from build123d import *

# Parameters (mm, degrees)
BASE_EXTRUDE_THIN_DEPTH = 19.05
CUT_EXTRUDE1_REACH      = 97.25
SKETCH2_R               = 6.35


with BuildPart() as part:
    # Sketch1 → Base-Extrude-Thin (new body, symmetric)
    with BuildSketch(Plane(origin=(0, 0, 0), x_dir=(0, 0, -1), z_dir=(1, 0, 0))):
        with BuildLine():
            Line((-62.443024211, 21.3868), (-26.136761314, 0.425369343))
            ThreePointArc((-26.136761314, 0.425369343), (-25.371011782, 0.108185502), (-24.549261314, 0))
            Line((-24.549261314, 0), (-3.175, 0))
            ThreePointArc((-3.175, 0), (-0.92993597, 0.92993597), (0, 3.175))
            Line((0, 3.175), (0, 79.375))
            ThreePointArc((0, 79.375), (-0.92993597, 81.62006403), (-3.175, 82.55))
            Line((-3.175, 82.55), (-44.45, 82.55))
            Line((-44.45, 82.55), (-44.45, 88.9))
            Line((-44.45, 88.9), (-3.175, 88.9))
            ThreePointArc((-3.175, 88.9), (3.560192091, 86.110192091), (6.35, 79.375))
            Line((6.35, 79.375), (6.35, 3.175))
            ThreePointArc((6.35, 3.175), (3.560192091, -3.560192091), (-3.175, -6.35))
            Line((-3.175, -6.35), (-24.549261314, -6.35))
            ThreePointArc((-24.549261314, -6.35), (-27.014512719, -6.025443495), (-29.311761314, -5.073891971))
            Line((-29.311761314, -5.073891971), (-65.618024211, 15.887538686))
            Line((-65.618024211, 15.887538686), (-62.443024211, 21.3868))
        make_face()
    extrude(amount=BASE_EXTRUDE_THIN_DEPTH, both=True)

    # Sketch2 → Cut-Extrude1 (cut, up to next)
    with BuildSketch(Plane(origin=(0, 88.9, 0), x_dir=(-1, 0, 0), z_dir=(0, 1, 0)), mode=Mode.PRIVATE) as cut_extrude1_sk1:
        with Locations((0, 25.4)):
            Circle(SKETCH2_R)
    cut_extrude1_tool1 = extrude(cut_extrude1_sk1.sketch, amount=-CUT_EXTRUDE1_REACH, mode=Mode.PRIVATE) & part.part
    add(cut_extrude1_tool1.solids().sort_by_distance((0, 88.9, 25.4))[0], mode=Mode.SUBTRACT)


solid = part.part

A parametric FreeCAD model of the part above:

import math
import FreeCAD as App
import Part
import Sketcher
from FreeCAD import Vector
Q = App.Units.Quantity

doc = App.newDocument("Part")
body = doc.addObject("PartDesign::Body", "Body")

# Sketch on YZ plane
sketch1 = body.newObject("Sketcher::SketchObject", "Sketch")
sketch1.AttachmentSupport = (doc.getObject("YZ_Plane"), [""])
sketch1.MapMode = "FlatFace"
sketch1.addGeometry([
    Part.LineSegment(Vector(0.425369, 26.136761, 0), Vector(21.3868, 62.443024, 0)),  # 0
    Part.LineSegment(Vector(21.3868, 62.443024, 0), Vector(15.887539, 65.618024, 0)),  # 1
    Part.LineSegment(Vector(15.887539, 65.618024, 0), Vector(-5.073892, 29.311761, 0)),  # 2
    Part.ArcOfCircle(Part.Circle(Vector(3.175, 24.549261, 0), Vector(0, 0, 1), 9.525), math.radians(150), math.radians(180)),  # 3
    Part.LineSegment(Vector(-6.35, 24.549261, 0), Vector(-6.35, 3.175, 0)),  # 4
    Part.ArcOfCircle(Part.Circle(Vector(3.175, 3.175, 0), Vector(0, 0, 1), 9.525), math.radians(180), math.radians(270)),  # 5
    Part.LineSegment(Vector(3.175, -6.35, 0), Vector(79.375, -6.35, 0)),  # 6
    Part.ArcOfCircle(Part.Circle(Vector(79.375, 3.175, 0), Vector(0, 0, 1), 9.525), math.radians(-90), math.radians(0)),  # 7
    Part.LineSegment(Vector(88.9, 3.175, 0), Vector(88.9, 44.45, 0)),  # 8
    Part.LineSegment(Vector(88.9, 44.45, 0), Vector(82.55, 44.45, 0)),  # 9
    Part.LineSegment(Vector(82.55, 44.45, 0), Vector(82.55, 3.175, 0)),  # 10
    Part.ArcOfCircle(Part.Circle(Vector(79.375, 3.175, 0), Vector(0, 0, 1), 3.175), math.radians(-90), math.radians(0)),  # 11
    Part.LineSegment(Vector(79.375, 0, 0), Vector(3.175, 0, 0)),  # 12
    Part.ArcOfCircle(Part.Circle(Vector(3.175, 3.175, 0), Vector(0, 0, 1), 3.175), math.radians(-180), math.radians(-90)),  # 13
    Part.LineSegment(Vector(0, 3.175, 0), Vector(0, 24.549261, 0)),  # 14
    Part.ArcOfCircle(Part.Circle(Vector(3.175, 24.549261, 0), Vector(0, 0, 1), 3.175), math.radians(150), math.radians(180)),  # 15
], False)
sketch1.addConstraint([
    Sketcher.Constraint("Coincident", 0, 2, 1, 1),
    Sketcher.Constraint("Coincident", 1, 2, 2, 1),
    Sketcher.Constraint("Tangent", 2, 2, 3, 1),
    Sketcher.Constraint("Tangent", 3, 2, 4, 1),
    Sketcher.Constraint("Tangent", 4, 2, 5, 1),
    Sketcher.Constraint("Tangent", 5, 2, 6, 1),
    Sketcher.Constraint("Tangent", 6, 2, 7, 1),
    Sketcher.Constraint("Tangent", 7, 2, 8, 1),
    Sketcher.Constraint("Coincident", 8, 2, 9, 1),
    Sketcher.Constraint("Coincident", 9, 2, 10, 1),
    Sketcher.Constraint("Tangent", 10, 2, 11, 2),
    Sketcher.Constraint("Tangent", 11, 1, 12, 1),
    Sketcher.Constraint("Tangent", 12, 2, 13, 2),
    Sketcher.Constraint("Tangent", 13, 1, 14, 1),
    Sketcher.Constraint("Tangent", 14, 2, 15, 2),
    Sketcher.Constraint("Tangent", 15, 1, 0, 1),
    Sketcher.Constraint("Vertical", 4),
    Sketcher.Constraint("Horizontal", 6),
    Sketcher.Constraint("Vertical", 8),
    Sketcher.Constraint("Horizontal", 9),
    Sketcher.Constraint("Vertical", 10),
    Sketcher.Constraint("Horizontal", 12),
    Sketcher.Constraint("Vertical", 14),
    Sketcher.Constraint("Coincident", 11, 3, 7, 3),
    Sketcher.Constraint("Coincident", 13, 3, 5, 3),
    Sketcher.Constraint("Coincident", 15, 3, 3, 3),
    Sketcher.Constraint("Equal", 3, 5),
    Sketcher.Constraint("Equal", 5, 7),
    Sketcher.Constraint("PointOnObject", 11, 1, -1),
    Sketcher.Constraint("PointOnObject", 13, 1, -2),
    Sketcher.Constraint("Perpendicular", 0, 1),
    Sketcher.Constraint("Perpendicular", 1, 2),
    Sketcher.Constraint("DistanceX", 6, 1, 6, 2, Q("3 in")),
    Sketcher.Constraint("Angle", 0, Q("60 deg")),
    Sketcher.Constraint("Radius", 3, Q("0.375 in")),
    Sketcher.Constraint("Radius", 11, Q("0.125 in")),
    Sketcher.Constraint("DistanceY", 6, 2, 8, 2, Q("2 in")),
    Sketcher.Constraint("DistanceX", -1, 1, 0, 2, Q("0.842 in")),
    Sketcher.Constraint("DistanceY", 4, 2, 4, 1, Q("21.374261 mm")),
])
pad1 = body.newObject("PartDesign::Pad", "Pad")
pad1.Profile = sketch1
pad1.Length = Q("1.5 in")
pad1.Midplane = True

# Sketch on XZ plane
sketch2 = body.newObject("Sketcher::SketchObject", "Sketch001")
sketch2.AttachmentSupport = (doc.getObject("XZ_Plane"), [""])
sketch2.MapMode = "FlatFace"
sketch2.AttachmentOffset = App.Placement(Vector(0, 0, -3.5 * 25.4), App.Rotation())
sketch2.addGeometry(Part.Circle(Vector(0, 25.4, 0), Vector(0, 0, 1), 6.35), False)
sketch2.addConstraint([
    Sketcher.Constraint("PointOnObject", 0, 3, -2),
    Sketcher.Constraint("Diameter", 0, Q("0.5 in")),
    Sketcher.Constraint("DistanceY", -1, 1, 0, 3, Q("1 in")),
])
pocket1 = body.newObject("PartDesign::Pocket", "Pocket")
pocket1.Profile = sketch2
pocket1.Type = "UpToFirst"
pocket1.Reversed = True

doc.recompute()
